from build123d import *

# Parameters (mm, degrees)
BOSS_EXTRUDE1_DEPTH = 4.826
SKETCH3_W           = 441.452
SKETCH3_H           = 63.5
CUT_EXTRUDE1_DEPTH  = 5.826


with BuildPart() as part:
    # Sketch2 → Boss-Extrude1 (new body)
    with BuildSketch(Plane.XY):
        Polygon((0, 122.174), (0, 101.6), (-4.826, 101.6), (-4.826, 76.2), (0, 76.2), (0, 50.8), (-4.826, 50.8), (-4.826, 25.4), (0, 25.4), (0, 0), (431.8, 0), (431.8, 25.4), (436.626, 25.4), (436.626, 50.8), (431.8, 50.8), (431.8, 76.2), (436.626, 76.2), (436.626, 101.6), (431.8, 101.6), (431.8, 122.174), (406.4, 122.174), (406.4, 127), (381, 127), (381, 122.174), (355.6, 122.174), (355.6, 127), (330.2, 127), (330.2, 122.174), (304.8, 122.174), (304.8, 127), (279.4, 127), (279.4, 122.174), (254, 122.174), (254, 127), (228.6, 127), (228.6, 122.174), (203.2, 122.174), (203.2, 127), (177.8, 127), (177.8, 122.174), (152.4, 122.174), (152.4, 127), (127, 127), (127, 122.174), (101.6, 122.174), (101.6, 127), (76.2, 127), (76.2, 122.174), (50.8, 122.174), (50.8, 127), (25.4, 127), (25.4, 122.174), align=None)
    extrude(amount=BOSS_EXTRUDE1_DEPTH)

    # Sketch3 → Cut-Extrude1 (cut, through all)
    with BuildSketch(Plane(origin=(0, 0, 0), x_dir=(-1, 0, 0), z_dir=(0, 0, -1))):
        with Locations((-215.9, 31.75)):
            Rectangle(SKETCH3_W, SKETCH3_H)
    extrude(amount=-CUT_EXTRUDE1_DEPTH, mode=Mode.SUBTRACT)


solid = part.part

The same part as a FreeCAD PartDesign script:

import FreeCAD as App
import Part
import Sketcher
from FreeCAD import Vector
Q = App.Units.Quantity


def add_polygon(sketch, points):
    """Adds a closed chain of lines whose ends are joined by coincident constraints."""
    first, n = sketch.GeometryCount, len(points)
    for a, b in zip(points, points[1:] + points[:1]):
        sketch.addGeometry(Part.LineSegment(App.Vector(*a, 0), App.Vector(*b, 0)), False)
    for i in range(n):
        sketch.addConstraint(Sketcher.Constraint("Coincident", first + i, 2, first + (i + 1) % n, 1))

doc = App.newDocument("Part")
body = doc.addObject("PartDesign::Body", "Body")

# Sketch on XY plane
sketch1 = body.newObject("Sketcher::SketchObject", "Sketch")
sketch1.AttachmentSupport = (doc.getObject("XY_Plane"), [""])
sketch1.MapMode = "FlatFace"
add_polygon(sketch1, [(0, 122.2), (0, 101.6), (-4.8, 101.6), (-4.8, 76.2), (0, 76.2), (0, 50.8), (-4.8, 50.8), (-4.8, 25.4), (0, 25.4), (0, 0), (431.8, 0), (431.8, 25.4), (436.6, 25.4), (436.6, 50.8), (431.8, 50.8), (431.8, 76.2), (436.6, 76.2), (436.6, 101.6), (431.8, 101.6), (431.8, 122.2), (406.4, 122.2), (406.4, 127), (381, 127), (381, 122.2), (355.6, 122.2), (355.6, 127), (330.2, 127), (330.2, 122.2), (304.8, 122.2), (304.8, 127), (279.4, 127), (279.4, 122.2), (254, 122.2), (254, 127), (228.6, 127), (228.6, 122.2), (203.2, 122.2), (203.2, 127), (177.8, 127), (177.8, 122.2), (152.4, 122.2), (152.4, 127), (127, 127), (127, 122.2), (101.6, 122.2), (101.6, 127), (76.2, 127), (76.2, 122.2), (50.8, 122.2), (50.8, 127), (25.4, 127), (25.4, 122.2)])  # lines 0-51
sketch1.addConstraint([
    Sketcher.Constraint("Vertical", 0),
    Sketcher.Constraint("Horizontal", 1),
    Sketcher.Constraint("Vertical", 2),
    Sketcher.Constraint("Horizontal", 3),
    Sketcher.Constraint("Vertical", 4),
    Sketcher.Constraint("Horizontal", 5),
    Sketcher.Constraint("Vertical", 6),
    Sketcher.Constraint("Horizontal", 7),
    Sketcher.Constraint("Vertical", 8),
    Sketcher.Constraint("Horizontal", 9),
    Sketcher.Constraint("Vertical", 10),
    Sketcher.Constraint("Horizontal", 11),
    Sketcher.Constraint("Vertical", 12),
    Sketcher.Constraint("Horizontal", 13),
    Sketcher.Constraint("Vertical", 14),
    Sketcher.Constraint("Horizontal", 15),
    Sketcher.Constraint("Vertical", 16),
    Sketcher.Constraint("Horizontal", 17),
    Sketcher.Constraint("Vertical", 18),
    Sketcher.Constraint("Horizontal", 19),
    Sketcher.Constraint("Vertical", 20),
    Sketcher.Constraint("Horizontal", 21),
    Sketcher.Constraint("Vertical", 22),
    Sketcher.Constraint("Horizontal", 23),
    Sketcher.Constraint("Vertical", 24),
    Sketcher.Constraint("Horizontal", 25),
    Sketcher.Constraint("Vertical", 26),
    Sketcher.Constraint("Horizontal", 27),
    Sketcher.Constraint("Vertical", 28),
    Sketcher.Constraint("Horizontal", 29),
    Sketcher.Constraint("Vertical", 30),
    Sketcher.Constraint("Horizontal", 31),
    Sketcher.Constraint("Vertical", 32),
    Sketcher.Constraint("Horizontal", 33),
    Sketcher.Constraint("Vertical", 34),
    Sketcher.Constraint("Horizontal", 35),
    Sketcher.Constraint("Vertical", 36),
    Sketcher.Constraint("Horizontal", 37),
    Sketcher.Constraint("Vertical", 38),
    Sketcher.Constraint("Horizontal", 39),
    Sketcher.Constraint("Vertical", 40),
    Sketcher.Constraint("Horizontal", 41),
    Sketcher.Constraint("Vertical", 42),
    Sketcher.Constraint("Horizontal", 43),
    Sketcher.Constraint("Vertical", 44),
    Sketcher.Constraint("Horizontal", 45),
    Sketcher.Constraint("Vertical", 46),
    Sketcher.Constraint("Horizontal", 47),
    Sketcher.Constraint("Vertical", 48),
    Sketcher.Constraint("Horizontal", 49),
    Sketcher.Constraint("Vertical", 50),
    Sketcher.Constraint("Horizontal", 51),
    Sketcher.Constraint("Coincident", 8, 2, -1, 1),
    Sketcher.Constraint("PointOnObject", 0, 2, -2),
    Sketcher.Constraint("PointOnObject", 3, 2, -2),
    Sketcher.Constraint("Horizontal", 7, 2, 10, 2),
    Sketcher.Constraint("Horizontal", 5, 2, 12, 2),
    Sketcher.Constraint("Horizontal", 3, 2, 14, 2),
    Sketcher.Constraint("Horizontal", 1, 2, 16, 2),
    Sketcher.Constraint("Horizontal", 19, 2, 22, 2),
    Sketcher.Constraint("Horizontal", 21, 2, 24, 2),
    Sketcher.Constraint("Horizontal", 23, 2, 26, 2),
    Sketcher.Constraint("Horizontal", 25, 2, 28, 2),
    Sketcher.Constraint("Horizontal", 27, 2, 30, 2),
    Sketcher.Constraint("Horizontal", 29, 2, 32, 2),
    Sketcher.Constraint("Horizontal", 31, 2, 34, 2),
    Sketcher.Constraint("Horizontal", 33, 2, 36, 2),
    Sketcher.Constraint("Horizontal", 35, 2, 38, 2),
    Sketcher.Constraint("Horizontal", 37, 2, 40, 2),
    Sketcher.Constraint("Horizontal", 39, 2, 42, 2),
    Sketcher.Constraint("Horizontal", 41, 2, 44, 2),
    Sketcher.Constraint("Horizontal", 43, 2, 46, 2),
    Sketcher.Constraint("Horizontal", 45, 2, 48, 2),
    Sketcher.Constraint("Horizontal", 47, 2, 50, 2),
    Sketcher.Constraint("Vertical", 2, 2, 5, 2),
    Sketcher.Constraint("Vertical", 10, 2, 13, 2),
    Sketcher.Constraint("Vertical", 12, 2, 15, 2),
    Sketcher.Constraint("Vertical", 14, 2, 17, 2),
    Sketcher.Constraint("Equal", 7, 11),
    Sketcher.Constraint("Equal", 19, 21),
    Sketcher.Constraint("Equal", 21, 23),
    Sketcher.Constraint("Equal", 23, 25),
    Sketcher.Constraint("Equal", 25, 27),
    Sketcher.Constraint("Equal", 27, 29),
    Sketcher.Constraint("Equal", 29, 31),
    Sketcher.Constraint("Equal", 31, 33),
    Sketcher.Constraint("Equal", 33, 35),
    Sketcher.Constraint("Equal", 35, 37),
    Sketcher.Constraint("Equal", 37, 39),
    Sketcher.Constraint("Equal", 39, 41),
    Sketcher.Constraint("Equal", 41, 43),
    Sketcher.Constraint("Equal", 43, 45),
    Sketcher.Constraint("Equal", 45, 47),
    Sketcher.Constraint("Equal", 47, 49),
    Sketcher.Constraint("Equal", 49, 51),
    Sketcher.Constraint("Equal", 51, 2),
    Sketcher.Constraint("Equal", 2, 4),
    Sketcher.Constraint("Equal", 4, 6),
    Sketcher.Constraint("Equal", 6, 8),
    Sketcher.Constraint("Equal", 17, 20),
    Sketcher.Constraint("DistanceX", 9, 1, 9, 2, Q("17 in")),
    Sketcher.Constraint("DistanceY", -1, 1, 20, 2, Q("5 in")),
    Sketcher.Constraint("DistanceX", 1, 2, 1, 1, Q("0.19 in")),
])
pad1 = body.newObject("PartDesign::Pad", "Pad")
pad1.Profile = sketch1
pad1.Length = Q("0.19 in")

# Sketch on XY plane
sketch2 = body.newObject("Sketcher::SketchObject", "Sketch001")
sketch2.AttachmentSupport = (doc.getObject("XY_Plane"), [""])
sketch2.MapMode = "FlatFace"
add_polygon(sketch2, [(437, 64), (437, 0), (-5, 0), (-5, 64)])  # lines 0-3
sketch2.addConstraint([
    Sketcher.Constraint("Vertical", 0),
    Sketcher.Constraint("Horizontal", 1),
    Sketcher.Constraint("Vertical", 2),
    Sketcher.Constraint("Horizontal", 3),
    Sketcher.Constraint("PointOnObject", 0, 2, -1),
    Sketcher.Constraint("DistanceY", 0, 2, 0, 1, Q("2.5 in")),
    Sketcher.Constraint("DistanceX", 1, 2, 1, 1, Q("17.38 in")),
    Sketcher.Constraint("DistanceX", -1, 1, 0, 2, Q("17.19 in")),
])
pocket1 = body.newObject("PartDesign::Pocket", "Pocket")
pocket1.Profile = sketch2
pocket1.Type = "ThroughAll"
pocket1.Reversed = True

doc.recompute()
